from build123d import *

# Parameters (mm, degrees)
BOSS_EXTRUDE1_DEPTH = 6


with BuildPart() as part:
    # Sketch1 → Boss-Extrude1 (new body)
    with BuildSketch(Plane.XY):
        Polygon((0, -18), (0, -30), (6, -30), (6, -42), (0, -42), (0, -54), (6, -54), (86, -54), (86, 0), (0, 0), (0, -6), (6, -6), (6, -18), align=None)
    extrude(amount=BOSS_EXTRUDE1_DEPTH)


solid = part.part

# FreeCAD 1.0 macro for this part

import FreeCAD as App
import Part
import Sketcher
from FreeCAD import Vector
Q = App.Units.Quantity


def add_polygon(sketch, points):
    """Adds a closed chain of lines whose ends are joined by coincident constraints."""
    first, n = sketch.GeometryCount, len(points)
    for a, b in zip(points, points[1:] + points[:1]):
        sketch.addGeometry(Part.LineSegment(App.Vector(*a, 0), App.Vector(*b, 0)), False)
    for i in range(n):
        sketch.addConstraint(Sketcher.Constraint("Coincident", first + i, 2, first + (i + 1) % n, 1))

doc = App.newDocument("Part")
params = doc.addObject("Spreadsheet::Sheet", "Params")
for row, (alias, value) in enumerate([
    ("sketch1_width", "6 mm"),
    ("sketch1_width2", "86 mm"),
    ("sketch1_height", "12 mm"),
    ("pad1_length", "6 mm"),
], start=1):
    params.set(f"A{row}", alias)
    params.set(f"B{row}", "=" + value)
    params.setAlias(f"B{row}", alias)

body = doc.addObject("PartDesign::Body", "Body")

# Sketch on XY plane
sketch1 = doc.addObject("Sketcher::SketchObject", "Sketch")
body.addObject(sketch1)
sketch1.AttachmentSupport = (doc.XY_Plane, [""])
sketch1.MapMode = "FlatFace"
add_polygon(sketch1, [(0, -18), (0, -30), (6, -30), (6, -42), (0, -42), (0, -54), (86, -54), (86, 0), (0, 0), (0, -6), (6, -6), (6, -18)])  # lines 0-11
sketch1.addConstraint([
    Sketcher.Constraint("Vertical", 0),
    Sketcher.Constraint("Horizontal", 1),
    Sketcher.Constraint("Vertical", 2),
    Sketcher.Constraint("Horizontal", 3),
    Sketcher.Constraint("Vertical", 4),
    Sketcher.Constraint("Horizontal", 5),
    Sketcher.Constraint("Vertical", 6),
    Sketcher.Constraint("Horizontal", 7),
    Sketcher.Constraint("Vertical", 8),
    Sketcher.Constraint("Horizontal", 9),
    Sketcher.Constraint("Vertical", 10),
    Sketcher.Constraint("Horizontal", 11),
    Sketcher.Constraint("Coincident", 7, 2, -1, 1),
    Sketcher.Constraint("PointOnObject", 0, 2, -2),
    Sketcher.Constraint("PointOnObject", 3, 2, -2),
    Sketcher.Constraint("Vertical", 2, 2, 9, 2),
    Sketcher.Constraint("Equal", 0, 2),
    Sketcher.Constraint("Equal", 2, 4),
    Sketcher.Constraint("Equal", 11, 8),
    Sketcher.Constraint("Equal", 4, 10),
    Sketcher.Constraint("DistanceX", 1, 1, 1, 2, Q("6 mm")),
    Sketcher.Constraint("DistanceX", 5, 1, 5, 2, Q("86 mm")),
    Sketcher.Constraint("DistanceY", 0, 2, 0, 1, Q("12 mm")),
])
sketch1.setExpression("Constraints[32]", "Params.sketch1_width")
sketch1.setExpression("Constraints[33]", "Params.sketch1_width2")
sketch1.setExpression("Constraints[34]", "Params.sketch1_height")
pad1 = doc.addObject("PartDesign::Pad", "Pad")
body.addObject(pad1)
pad1.Profile = sketch1
pad1.setExpression("Length", "Params.pad1_length")

doc.recompute()
